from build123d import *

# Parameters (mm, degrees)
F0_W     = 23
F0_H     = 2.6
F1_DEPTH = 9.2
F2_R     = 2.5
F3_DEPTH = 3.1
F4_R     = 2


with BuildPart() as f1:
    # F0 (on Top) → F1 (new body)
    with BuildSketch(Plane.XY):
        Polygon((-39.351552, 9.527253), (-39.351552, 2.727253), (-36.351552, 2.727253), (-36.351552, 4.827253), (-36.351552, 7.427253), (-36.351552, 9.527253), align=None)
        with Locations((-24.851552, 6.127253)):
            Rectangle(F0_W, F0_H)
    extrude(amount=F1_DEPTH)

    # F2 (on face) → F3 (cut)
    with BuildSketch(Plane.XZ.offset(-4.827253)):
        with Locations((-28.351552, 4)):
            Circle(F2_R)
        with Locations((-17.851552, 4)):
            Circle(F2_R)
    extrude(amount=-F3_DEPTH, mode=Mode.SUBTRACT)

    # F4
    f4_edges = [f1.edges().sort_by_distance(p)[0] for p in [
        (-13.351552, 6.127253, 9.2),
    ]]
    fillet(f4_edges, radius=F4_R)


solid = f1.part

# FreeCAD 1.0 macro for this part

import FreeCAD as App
import Part
import Sketcher


def edges_at(feature, points):
    """Names of the edges that pass closest to the given points."""
    edges = feature.Shape.Edges
    near = lambda p: min(range(len(edges)), key=lambda i: edges[i].distToShape(Part.Vertex(*p))[0])
    return sorted({f"Edge{near(p) + 1}" for p in points})


def add_polygon(sketch, points):
    """Adds a closed chain of lines whose ends are joined by coincident constraints."""
    first, n = sketch.GeometryCount, len(points)
    for a, b in zip(points, points[1:] + points[:1]):
        sketch.addGeometry(Part.LineSegment(App.Vector(*a, 0), App.Vector(*b, 0)), False)
    for i in range(n):
        sketch.addConstraint(Sketcher.Constraint("Coincident", first + i, 2, first + (i + 1) % n, 1))

doc = App.newDocument("Part")
body = doc.addObject("PartDesign::Body", "Body")

sketch1 = doc.addObject("Sketcher::SketchObject", "Sketch")
body.addObject(sketch1)
sketch1.AttachmentSupport = (doc.XY_Plane, [""])
sketch1.MapMode = "FlatFace"
add_polygon(sketch1, [(-39.351552, 9.527253), (-39.351552, 2.727253), (-36.351552, 2.727253), (-36.351552, 4.827253), (-13.351552, 4.827253), (-13.351552, 7.427253), (-36.351552, 7.427253), (-36.351552, 9.527253)])
sketch1.addConstraint(Sketcher.Constraint("Vertical", 0))
sketch1.addConstraint(Sketcher.Constraint("Horizontal", 1))
sketch1.addConstraint(Sketcher.Constraint("Vertical", 2))
sketch1.addConstraint(Sketcher.Constraint("Horizontal", 3))
sketch1.addConstraint(Sketcher.Constraint("Vertical", 4))
sketch1.addConstraint(Sketcher.Constraint("Horizontal", 5))
sketch1.addConstraint(Sketcher.Constraint("Vertical", 6))
sketch1.addConstraint(Sketcher.Constraint("Horizontal", 7))
sketch1.addConstraint(Sketcher.Constraint("Vertical", 2, 2, 5, 2))
sketch1.addConstraint(Sketcher.Constraint("Equal", 2, 6))
sketch1.addConstraint(Sketcher.Constraint("DistanceX", 1, 1, 1, 2, 3.0))
sketch1.addConstraint(Sketcher.Constraint("DistanceX", 3, 1, 3, 2, 23.0))
sketch1.addConstraint(Sketcher.Constraint("DistanceY", 0, 2, 0, 1, 6.8))
sketch1.addConstraint(Sketcher.Constraint("DistanceY", 2, 1, 2, 2, 2.1))
sketch1.addConstraint(Sketcher.Constraint("DistanceX", 0, 2, -1, 1, 39.351552))
sketch1.addConstraint(Sketcher.Constraint("DistanceY", -1, 1, 0, 2, 2.727253))
pad1 = doc.addObject("PartDesign::Pad", "Pad")
body.addObject(pad1)
pad1.Profile = sketch1
pad1.Length = 9.2

sketch2 = doc.addObject("Sketcher::SketchObject", "Sketch001")
body.addObject(sketch2)
sketch2.AttachmentSupport = (doc.XZ_Plane, [""])
sketch2.MapMode = "FlatFace"
sketch2.AttachmentOffset = App.Placement(App.Vector(0, 0, -4.827253), App.Rotation())
sketch2.addGeometry(Part.Circle(App.Vector(-28.351552, 4, 0), App.Vector(0, 0, 1), 2.5), False)
sketch2.addGeometry(Part.Circle(App.Vector(-17.851552, 4, 0), App.Vector(0, 0, 1), 2.5), False)
sketch2.addConstraint(Sketcher.Constraint("Equal", 0, 1))
sketch2.addConstraint(Sketcher.Constraint("Horizontal", 0, 3, 1, 3))
sketch2.addConstraint(Sketcher.Constraint("Diameter", 0, 5.0))
sketch2.addConstraint(Sketcher.Constraint("DistanceY", -1, 1, 0, 3, 4.0))
sketch2.addConstraint(Sketcher.Constraint("DistanceX", 0, 3, 1, 3, 10.5))
sketch2.addConstraint(Sketcher.Constraint("DistanceX", 0, 3, -1, 1, 28.351552))
pocket1 = doc.addObject("PartDesign::Pocket", "Pocket")
body.addObject(pocket1)
pocket1.Profile = sketch2
pocket1.Length = 3.1
doc.recompute()

fillet = doc.addObject("PartDesign::Fillet", "Fillet")
body.addObject(fillet)
fillet.Base = (pocket1, edges_at(pocket1, [(-13.352, 6.127, 9.2)]))
fillet.Radius = 2

doc.recompute()
